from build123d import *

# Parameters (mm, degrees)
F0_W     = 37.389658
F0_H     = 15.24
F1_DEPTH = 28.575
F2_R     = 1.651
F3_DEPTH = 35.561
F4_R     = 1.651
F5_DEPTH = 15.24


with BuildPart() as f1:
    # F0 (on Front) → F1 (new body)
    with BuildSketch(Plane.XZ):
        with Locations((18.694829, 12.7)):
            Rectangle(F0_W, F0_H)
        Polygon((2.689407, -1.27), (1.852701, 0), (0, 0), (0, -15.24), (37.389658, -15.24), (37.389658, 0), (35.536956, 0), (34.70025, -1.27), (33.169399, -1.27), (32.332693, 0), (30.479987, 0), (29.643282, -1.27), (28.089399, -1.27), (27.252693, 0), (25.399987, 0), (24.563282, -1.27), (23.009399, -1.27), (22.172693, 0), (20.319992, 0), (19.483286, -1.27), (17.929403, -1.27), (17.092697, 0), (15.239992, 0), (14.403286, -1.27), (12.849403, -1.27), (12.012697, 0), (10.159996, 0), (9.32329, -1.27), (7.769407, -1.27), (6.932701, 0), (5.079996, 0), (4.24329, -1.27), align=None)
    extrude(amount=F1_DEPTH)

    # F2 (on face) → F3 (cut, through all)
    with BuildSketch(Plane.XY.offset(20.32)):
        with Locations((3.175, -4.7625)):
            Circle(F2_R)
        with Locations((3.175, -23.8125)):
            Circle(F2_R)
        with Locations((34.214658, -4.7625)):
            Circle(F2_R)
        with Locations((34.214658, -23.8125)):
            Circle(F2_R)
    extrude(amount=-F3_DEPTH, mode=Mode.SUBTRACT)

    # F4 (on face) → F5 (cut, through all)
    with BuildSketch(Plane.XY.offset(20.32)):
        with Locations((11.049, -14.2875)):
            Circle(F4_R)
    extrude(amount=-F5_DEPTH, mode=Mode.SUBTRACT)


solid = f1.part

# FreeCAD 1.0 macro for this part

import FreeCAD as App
import Part
import Sketcher
Q = App.Units.Quantity

doc = App.newDocument("Part")
body = doc.addObject("PartDesign::Body", "Body")
body.AllowCompound = True

# Sketch on XZ plane
sketch1 = doc.addObject("Sketcher::SketchObject", "Sketch")
body.addObject(sketch1)
sketch1.AttachmentSupport = (doc.XZ_Plane, [""])
sketch1.MapMode = "FlatFace"
sketch1.addGeometry([
    Part.LineSegment(App.Vector(0, 20.32, 0), App.Vector(0, 5.08, 0)),  # 0
    Part.LineSegment(App.Vector(0, 5.08, 0), App.Vector(37.389658, 5.08, 0)),  # 1
    Part.LineSegment(App.Vector(37.389658, 5.08, 0), App.Vector(37.389658, 20.32, 0)),  # 2
    Part.LineSegment(App.Vector(37.389658, 20.32, 0), App.Vector(0, 20.32, 0)),  # 3
    Part.LineSegment(App.Vector(2.689407, -1.27, 0), App.Vector(1.852701, 0, 0)),  # 4
    Part.LineSegment(App.Vector(1.852701, 0, 0), App.Vector(0, 0, 0)),  # 5
    Part.LineSegment(App.Vector(0, 0, 0), App.Vector(0, -15.24, 0)),  # 6
    Part.LineSegment(App.Vector(0, -15.24, 0), App.Vector(37.389658, -15.24, 0)),  # 7
    Part.LineSegment(App.Vector(37.389658, -15.24, 0), App.Vector(37.389658, 0, 0)),  # 8
    Part.LineSegment(App.Vector(37.389658, 0, 0), App.Vector(35.536956, 0, 0)),  # 9
    Part.LineSegment(App.Vector(35.536956, 0, 0), App.Vector(34.70025, -1.27, 0)),  # 10
    Part.LineSegment(App.Vector(34.70025, -1.27, 0), App.Vector(33.169399, -1.27, 0)),  # 11
    Part.LineSegment(App.Vector(33.169399, -1.27, 0), App.Vector(32.332693, 0, 0)),  # 12
    Part.LineSegment(App.Vector(32.332693, 0, 0), App.Vector(30.479987, 0, 0)),  # 13
    Part.LineSegment(App.Vector(30.479987, 0, 0), App.Vector(29.643282, -1.27, 0)),  # 14
    Part.LineSegment(App.Vector(29.643282, -1.27, 0), App.Vector(28.089399, -1.27, 0)),  # 15
    Part.LineSegment(App.Vector(28.089399, -1.27, 0), App.Vector(27.252693, 0, 0)),  # 16
    Part.LineSegment(App.Vector(27.252693, 0, 0), App.Vector(25.399987, 0, 0)),  # 17
    Part.LineSegment(App.Vector(25.399987, 0, 0), App.Vector(24.563282, -1.27, 0)),  # 18
    Part.LineSegment(App.Vector(24.563282, -1.27, 0), App.Vector(23.009399, -1.27, 0)),  # 19
    Part.LineSegment(App.Vector(23.009399, -1.27, 0), App.Vector(22.172693, 0, 0)),  # 20
    Part.LineSegment(App.Vector(22.172693, 0, 0), App.Vector(20.319992, 0, 0)),  # 21
    Part.LineSegment(App.Vector(20.319992, 0, 0), App.Vector(19.483286, -1.27, 0)),  # 22
    Part.LineSegment(App.Vector(19.483286, -1.27, 0), App.Vector(17.929403, -1.27, 0)),  # 23
    Part.LineSegment(App.Vector(17.929403, -1.27, 0), App.Vector(17.092697, 0, 0)),  # 24
    Part.LineSegment(App.Vector(17.092697, 0, 0), App.Vector(15.239992, 0, 0)),  # 25
    Part.LineSegment(App.Vector(15.239992, 0, 0), App.Vector(14.403286, -1.27, 0)),  # 26
    Part.LineSegment(App.Vector(14.403286, -1.27, 0), App.Vector(12.849403, -1.27, 0)),  # 27
    Part.LineSegment(App.Vector(12.849403, -1.27, 0), App.Vector(12.012697, 0, 0)),  # 28
    Part.LineSegment(App.Vector(12.012697, 0, 0), App.Vector(10.159996, 0, 0)),  # 29
    Part.LineSegment(App.Vector(10.159996, 0, 0), App.Vector(9.32329, -1.27, 0)),  # 30
    Part.LineSegment(App.Vector(9.32329, -1.27, 0), App.Vector(7.769407, -1.27, 0)),  # 31
    Part.LineSegment(App.Vector(7.769407, -1.27, 0), App.Vector(6.932701, 0, 0)),  # 32
    Part.LineSegment(App.Vector(6.932701, 0, 0), App.Vector(5.079996, 0, 0)),  # 33
    Part.LineSegment(App.Vector(5.079996, 0, 0), App.Vector(4.24329, -1.27, 0)),  # 34
    Part.LineSegment(App.Vector(4.24329, -1.27, 0), App.Vector(2.689407, -1.27, 0)),  # 35
], False)
sketch1.addConstraint([
    Sketcher.Constraint("Coincident", 0, 2, 1, 1),
    Sketcher.Constraint("Coincident", 1, 2, 2, 1),
    Sketcher.Constraint("Coincident", 2, 2, 3, 1),
    Sketcher.Constraint("Coincident", 3, 2, 0, 1),
    Sketcher.Constraint("Coincident", 4, 2, 5, 1),
    Sketcher.Constraint("Coincident", 5, 2, 6, 1),
    Sketcher.Constraint("Coincident", 6, 2, 7, 1),
    Sketcher.Constraint("Coincident", 7, 2, 8, 1),
    Sketcher.Constraint("Coincident", 8, 2, 9, 1),
    Sketcher.Constraint("Coincident", 9, 2, 10, 1),
    Sketcher.Constraint("Coincident", 10, 2, 11, 1),
    Sketcher.Constraint("Coincident", 11, 2, 12, 1),
    Sketcher.Constraint("Coincident", 12, 2, 13, 1),
    Sketcher.Constraint("Coincident", 13, 2, 14, 1),
    Sketcher.Constraint("Coincident", 14, 2, 15, 1),
    Sketcher.Constraint("Coincident", 15, 2, 16, 1),
    Sketcher.Constraint("Coincident", 16, 2, 17, 1),
    Sketcher.Constraint("Coincident", 17, 2, 18, 1),
    Sketcher.Constraint("Coincident", 18, 2, 19, 1),
    Sketcher.Constraint("Coincident", 19, 2, 20, 1),
    Sketcher.Constraint("Coincident", 20, 2, 21, 1),
    Sketcher.Constraint("Coincident", 21, 2, 22, 1),
    Sketcher.Constraint("Coincident", 22, 2, 23, 1),
    Sketcher.Constraint("Coincident", 23, 2, 24, 1),
    Sketcher.Constraint("Coincident", 24, 2, 25, 1),
    Sketcher.Constraint("Coincident", 25, 2, 26, 1),
    Sketcher.Constraint("Coincident", 26, 2, 27, 1),
    Sketcher.Constraint("Coincident", 27, 2, 28, 1),
    Sketcher.Constraint("Coincident", 28, 2, 29, 1),
    Sketcher.Constraint("Coincident", 29, 2, 30, 1),
    Sketcher.Constraint("Coincident", 30, 2, 31, 1),
    Sketcher.Constraint("Coincident", 31, 2, 32, 1),
    Sketcher.Constraint("Coincident", 32, 2, 33, 1),
    Sketcher.Constraint("Coincident", 33, 2, 34, 1),
    Sketcher.Constraint("Coincident", 34, 2, 35, 1),
    Sketcher.Constraint("Coincident", 35, 2, 4, 1),
    Sketcher.Constraint("Vertical", 0),
    Sketcher.Constraint("Horizontal", 1),
    Sketcher.Constraint("Vertical", 2),
    Sketcher.Constraint("Horizontal", 3),
    Sketcher.Constraint("Horizontal", 5),
    Sketcher.Constraint("Vertical", 6),
    Sketcher.Constraint("Horizontal", 7),
    Sketcher.Constraint("Vertical", 8),
    Sketcher.Constraint("Horizontal", 9),
    Sketcher.Constraint("Horizontal", 11),
    Sketcher.Constraint("Horizontal", 13),
    Sketcher.Constraint("Horizontal", 15),
    Sketcher.Constraint("Horizontal", 17),
    Sketcher.Constraint("Horizontal", 19),
    Sketcher.Constraint("Horizontal", 21),
    Sketcher.Constraint("Horizontal", 23),
    Sketcher.Constraint("Horizontal", 25),
    Sketcher.Constraint("Horizontal", 27),
    Sketcher.Constraint("Horizontal", 29),
    Sketcher.Constraint("Horizontal", 31),
    Sketcher.Constraint("Horizontal", 33),
    Sketcher.Constraint("Horizontal", 35),
    Sketcher.Constraint("Coincident", 5, 2, -1, 1),
    Sketcher.Constraint("PointOnObject", 0, 2, -2),
    Sketcher.Constraint("PointOnObject", 8, 2, -1),
    Sketcher.Constraint("PointOnObject", 12, 2, -1),
    Sketcher.Constraint("PointOnObject", 16, 2, -1),
    Sketcher.Constraint("PointOnObject", 20, 2, -1),
    Sketcher.Constraint("PointOnObject", 24, 2, -1),
    Sketcher.Constraint("PointOnObject", 28, 2, -1),
    Sketcher.Constraint("PointOnObject", 32, 2, -1),
    Sketcher.Constraint("Parallel", 4, 12),
    Sketcher.Constraint("Parallel", 10, 14),
    Sketcher.Constraint("Parallel", 12, 16),
    Sketcher.Constraint("Parallel", 14, 18),
    Sketcher.Constraint("Parallel", 16, 20),
    Sketcher.Constraint("Parallel", 18, 22),
    Sketcher.Constraint("Parallel", 20, 24),
    Sketcher.Constraint("Parallel", 22, 26),
    Sketcher.Constraint("Parallel", 24, 28),
    Sketcher.Constraint("Parallel", 26, 30),
    Sketcher.Constraint("Parallel", 28, 32),
    Sketcher.Constraint("Parallel", 30, 34),
    Sketcher.Constraint("Horizontal", 11, 2, 14, 2),
    Sketcher.Constraint("Horizontal", 15, 2, 18, 2),
    Sketcher.Constraint("Horizontal", 19, 2, 22, 2),
    Sketcher.Constraint("Horizontal", 23, 2, 26, 2),
    Sketcher.Constraint("Horizontal", 27, 2, 30, 2),
    Sketcher.Constraint("Horizontal", 31, 2, 34, 2),
    Sketcher.Constraint("Vertical", 2, 2, 7, 2),
    Sketcher.Constraint("Equal", 5, 9),
    Sketcher.Constraint("Equal", 13, 17),
    Sketcher.Constraint("Equal", 15, 19),
    Sketcher.Constraint("Equal", 9, 21),
    Sketcher.Constraint("Equal", 19, 23),
    Sketcher.Constraint("Equal", 17, 25),
    Sketcher.Constraint("Equal", 23, 27),
    Sketcher.Constraint("Equal", 21, 29),
    Sketcher.Constraint("Equal", 27, 31),
    Sketcher.Constraint("Equal", 25, 33),
    Sketcher.Constraint("Equal", 31, 35),
    Sketcher.Constraint("Equal", 2, 6),
    Sketcher.Constraint("Equal", 4, 10),
    Sketcher.Constraint("DistanceY", 0, 2, 0, 1, Q("0.6 in")),
    Sketcher.Constraint("DistanceY", -1, 1, 0, 2, Q("0.2 in")),
    Sketcher.Constraint("DistanceX", -1, 1, 29, 2, Q("0.3999998 in")),
    Sketcher.Constraint("DistanceX", -1, 1, 33, 2, Q("0.1999998 in")),
    Sketcher.Constraint("DistanceY", 10, 2, -1, 1, Q("0.05 in")),
    Sketcher.Constraint("DistanceX", 5, 2, 5, 1, Q("1.852701 mm")),
    Sketcher.Constraint("DistanceX", 11, 2, 11, 1, Q("1.530851 mm")),
    Sketcher.Constraint("DistanceX", -1, 1, 11, 2, Q("33.169399 mm")),
])
pad1 = doc.addObject("PartDesign::Pad", "Pad")
body.addObject(pad1)
pad1.Profile = sketch1
pad1.Length = Q("1.125 in")

# Sketch on XY plane
sketch2 = doc.addObject("Sketcher::SketchObject", "Sketch001")
body.addObject(sketch2)
sketch2.AttachmentSupport = (doc.XY_Plane, [""])
sketch2.MapMode = "FlatFace"
sketch2.AttachmentOffset = App.Placement(App.Vector(0, 0, 0.8 * 25.4), App.Rotation())
sketch2.addGeometry([
    Part.Circle(App.Vector(3.175, -4.7625, 0), App.Vector(0, 0, 1), 1.651),
    Part.Circle(App.Vector(3.175, -23.8125, 0), App.Vector(0, 0, 1), 1.651),
    Part.Circle(App.Vector(34.214658, -4.7625, 0), App.Vector(0, 0, 1), 1.651),
    Part.Circle(App.Vector(34.214658, -23.8125, 0), App.Vector(0, 0, 1), 1.651),
], False)
sketch2.addConstraint([
    Sketcher.Constraint("Equal", 0, 1),
    Sketcher.Constraint("Equal", 1, 2),
    Sketcher.Constraint("Equal", 2, 3),
    Sketcher.Constraint("Horizontal", 0, 3, 2, 3),
    Sketcher.Constraint("Horizontal", 1, 3, 3, 3),
    Sketcher.Constraint("Vertical", 0, 3, 1, 3),
    Sketcher.Constraint("Vertical", 2, 3, 3, 3),
    Sketcher.Constraint("Diameter", 0, Q("0.13 in")),
    Sketcher.Constraint("DistanceY", 1, 3, 0, 3, Q("0.75 in")),
    Sketcher.Constraint("DistanceX", -1, 1, 0, 3, Q("0.125 in")),
    Sketcher.Constraint("DistanceY", 0, 3, -1, 1, Q("0.1875 in")),
    Sketcher.Constraint("DistanceX", -1, 1, 2, 3, Q("34.214658 mm")),
])
pocket1 = doc.addObject("PartDesign::Pocket", "Pocket")
body.addObject(pocket1)
pocket1.Profile = sketch2
pocket1.Type = "ThroughAll"

# Sketch on XY plane
sketch3 = doc.addObject("Sketcher::SketchObject", "Sketch002")
body.addObject(sketch3)
sketch3.AttachmentSupport = (doc.XY_Plane, [""])
sketch3.MapMode = "FlatFace"
sketch3.AttachmentOffset = App.Placement(App.Vector(0, 0, 0.8 * 25.4), App.Rotation())
sketch3.addGeometry(Part.Circle(App.Vector(11.049, -14.2875, 0), App.Vector(0, 0, 1), 1.651), False)
sketch3.addConstraint([
    Sketcher.Constraint("Diameter", 0, Q("0.13 in")),
    Sketcher.Constraint("DistanceX", -1, 1, 0, 3, Q("0.435 in")),
    Sketcher.Constraint("DistanceY", 0, 3, -1, 1, Q("0.5625 in")),
])
pocket2 = doc.addObject("PartDesign::Pocket", "Pocket001")
body.addObject(pocket2)
pocket2.Profile = sketch3
pocket2.Length = Q("0.6 in")

doc.recompute()
